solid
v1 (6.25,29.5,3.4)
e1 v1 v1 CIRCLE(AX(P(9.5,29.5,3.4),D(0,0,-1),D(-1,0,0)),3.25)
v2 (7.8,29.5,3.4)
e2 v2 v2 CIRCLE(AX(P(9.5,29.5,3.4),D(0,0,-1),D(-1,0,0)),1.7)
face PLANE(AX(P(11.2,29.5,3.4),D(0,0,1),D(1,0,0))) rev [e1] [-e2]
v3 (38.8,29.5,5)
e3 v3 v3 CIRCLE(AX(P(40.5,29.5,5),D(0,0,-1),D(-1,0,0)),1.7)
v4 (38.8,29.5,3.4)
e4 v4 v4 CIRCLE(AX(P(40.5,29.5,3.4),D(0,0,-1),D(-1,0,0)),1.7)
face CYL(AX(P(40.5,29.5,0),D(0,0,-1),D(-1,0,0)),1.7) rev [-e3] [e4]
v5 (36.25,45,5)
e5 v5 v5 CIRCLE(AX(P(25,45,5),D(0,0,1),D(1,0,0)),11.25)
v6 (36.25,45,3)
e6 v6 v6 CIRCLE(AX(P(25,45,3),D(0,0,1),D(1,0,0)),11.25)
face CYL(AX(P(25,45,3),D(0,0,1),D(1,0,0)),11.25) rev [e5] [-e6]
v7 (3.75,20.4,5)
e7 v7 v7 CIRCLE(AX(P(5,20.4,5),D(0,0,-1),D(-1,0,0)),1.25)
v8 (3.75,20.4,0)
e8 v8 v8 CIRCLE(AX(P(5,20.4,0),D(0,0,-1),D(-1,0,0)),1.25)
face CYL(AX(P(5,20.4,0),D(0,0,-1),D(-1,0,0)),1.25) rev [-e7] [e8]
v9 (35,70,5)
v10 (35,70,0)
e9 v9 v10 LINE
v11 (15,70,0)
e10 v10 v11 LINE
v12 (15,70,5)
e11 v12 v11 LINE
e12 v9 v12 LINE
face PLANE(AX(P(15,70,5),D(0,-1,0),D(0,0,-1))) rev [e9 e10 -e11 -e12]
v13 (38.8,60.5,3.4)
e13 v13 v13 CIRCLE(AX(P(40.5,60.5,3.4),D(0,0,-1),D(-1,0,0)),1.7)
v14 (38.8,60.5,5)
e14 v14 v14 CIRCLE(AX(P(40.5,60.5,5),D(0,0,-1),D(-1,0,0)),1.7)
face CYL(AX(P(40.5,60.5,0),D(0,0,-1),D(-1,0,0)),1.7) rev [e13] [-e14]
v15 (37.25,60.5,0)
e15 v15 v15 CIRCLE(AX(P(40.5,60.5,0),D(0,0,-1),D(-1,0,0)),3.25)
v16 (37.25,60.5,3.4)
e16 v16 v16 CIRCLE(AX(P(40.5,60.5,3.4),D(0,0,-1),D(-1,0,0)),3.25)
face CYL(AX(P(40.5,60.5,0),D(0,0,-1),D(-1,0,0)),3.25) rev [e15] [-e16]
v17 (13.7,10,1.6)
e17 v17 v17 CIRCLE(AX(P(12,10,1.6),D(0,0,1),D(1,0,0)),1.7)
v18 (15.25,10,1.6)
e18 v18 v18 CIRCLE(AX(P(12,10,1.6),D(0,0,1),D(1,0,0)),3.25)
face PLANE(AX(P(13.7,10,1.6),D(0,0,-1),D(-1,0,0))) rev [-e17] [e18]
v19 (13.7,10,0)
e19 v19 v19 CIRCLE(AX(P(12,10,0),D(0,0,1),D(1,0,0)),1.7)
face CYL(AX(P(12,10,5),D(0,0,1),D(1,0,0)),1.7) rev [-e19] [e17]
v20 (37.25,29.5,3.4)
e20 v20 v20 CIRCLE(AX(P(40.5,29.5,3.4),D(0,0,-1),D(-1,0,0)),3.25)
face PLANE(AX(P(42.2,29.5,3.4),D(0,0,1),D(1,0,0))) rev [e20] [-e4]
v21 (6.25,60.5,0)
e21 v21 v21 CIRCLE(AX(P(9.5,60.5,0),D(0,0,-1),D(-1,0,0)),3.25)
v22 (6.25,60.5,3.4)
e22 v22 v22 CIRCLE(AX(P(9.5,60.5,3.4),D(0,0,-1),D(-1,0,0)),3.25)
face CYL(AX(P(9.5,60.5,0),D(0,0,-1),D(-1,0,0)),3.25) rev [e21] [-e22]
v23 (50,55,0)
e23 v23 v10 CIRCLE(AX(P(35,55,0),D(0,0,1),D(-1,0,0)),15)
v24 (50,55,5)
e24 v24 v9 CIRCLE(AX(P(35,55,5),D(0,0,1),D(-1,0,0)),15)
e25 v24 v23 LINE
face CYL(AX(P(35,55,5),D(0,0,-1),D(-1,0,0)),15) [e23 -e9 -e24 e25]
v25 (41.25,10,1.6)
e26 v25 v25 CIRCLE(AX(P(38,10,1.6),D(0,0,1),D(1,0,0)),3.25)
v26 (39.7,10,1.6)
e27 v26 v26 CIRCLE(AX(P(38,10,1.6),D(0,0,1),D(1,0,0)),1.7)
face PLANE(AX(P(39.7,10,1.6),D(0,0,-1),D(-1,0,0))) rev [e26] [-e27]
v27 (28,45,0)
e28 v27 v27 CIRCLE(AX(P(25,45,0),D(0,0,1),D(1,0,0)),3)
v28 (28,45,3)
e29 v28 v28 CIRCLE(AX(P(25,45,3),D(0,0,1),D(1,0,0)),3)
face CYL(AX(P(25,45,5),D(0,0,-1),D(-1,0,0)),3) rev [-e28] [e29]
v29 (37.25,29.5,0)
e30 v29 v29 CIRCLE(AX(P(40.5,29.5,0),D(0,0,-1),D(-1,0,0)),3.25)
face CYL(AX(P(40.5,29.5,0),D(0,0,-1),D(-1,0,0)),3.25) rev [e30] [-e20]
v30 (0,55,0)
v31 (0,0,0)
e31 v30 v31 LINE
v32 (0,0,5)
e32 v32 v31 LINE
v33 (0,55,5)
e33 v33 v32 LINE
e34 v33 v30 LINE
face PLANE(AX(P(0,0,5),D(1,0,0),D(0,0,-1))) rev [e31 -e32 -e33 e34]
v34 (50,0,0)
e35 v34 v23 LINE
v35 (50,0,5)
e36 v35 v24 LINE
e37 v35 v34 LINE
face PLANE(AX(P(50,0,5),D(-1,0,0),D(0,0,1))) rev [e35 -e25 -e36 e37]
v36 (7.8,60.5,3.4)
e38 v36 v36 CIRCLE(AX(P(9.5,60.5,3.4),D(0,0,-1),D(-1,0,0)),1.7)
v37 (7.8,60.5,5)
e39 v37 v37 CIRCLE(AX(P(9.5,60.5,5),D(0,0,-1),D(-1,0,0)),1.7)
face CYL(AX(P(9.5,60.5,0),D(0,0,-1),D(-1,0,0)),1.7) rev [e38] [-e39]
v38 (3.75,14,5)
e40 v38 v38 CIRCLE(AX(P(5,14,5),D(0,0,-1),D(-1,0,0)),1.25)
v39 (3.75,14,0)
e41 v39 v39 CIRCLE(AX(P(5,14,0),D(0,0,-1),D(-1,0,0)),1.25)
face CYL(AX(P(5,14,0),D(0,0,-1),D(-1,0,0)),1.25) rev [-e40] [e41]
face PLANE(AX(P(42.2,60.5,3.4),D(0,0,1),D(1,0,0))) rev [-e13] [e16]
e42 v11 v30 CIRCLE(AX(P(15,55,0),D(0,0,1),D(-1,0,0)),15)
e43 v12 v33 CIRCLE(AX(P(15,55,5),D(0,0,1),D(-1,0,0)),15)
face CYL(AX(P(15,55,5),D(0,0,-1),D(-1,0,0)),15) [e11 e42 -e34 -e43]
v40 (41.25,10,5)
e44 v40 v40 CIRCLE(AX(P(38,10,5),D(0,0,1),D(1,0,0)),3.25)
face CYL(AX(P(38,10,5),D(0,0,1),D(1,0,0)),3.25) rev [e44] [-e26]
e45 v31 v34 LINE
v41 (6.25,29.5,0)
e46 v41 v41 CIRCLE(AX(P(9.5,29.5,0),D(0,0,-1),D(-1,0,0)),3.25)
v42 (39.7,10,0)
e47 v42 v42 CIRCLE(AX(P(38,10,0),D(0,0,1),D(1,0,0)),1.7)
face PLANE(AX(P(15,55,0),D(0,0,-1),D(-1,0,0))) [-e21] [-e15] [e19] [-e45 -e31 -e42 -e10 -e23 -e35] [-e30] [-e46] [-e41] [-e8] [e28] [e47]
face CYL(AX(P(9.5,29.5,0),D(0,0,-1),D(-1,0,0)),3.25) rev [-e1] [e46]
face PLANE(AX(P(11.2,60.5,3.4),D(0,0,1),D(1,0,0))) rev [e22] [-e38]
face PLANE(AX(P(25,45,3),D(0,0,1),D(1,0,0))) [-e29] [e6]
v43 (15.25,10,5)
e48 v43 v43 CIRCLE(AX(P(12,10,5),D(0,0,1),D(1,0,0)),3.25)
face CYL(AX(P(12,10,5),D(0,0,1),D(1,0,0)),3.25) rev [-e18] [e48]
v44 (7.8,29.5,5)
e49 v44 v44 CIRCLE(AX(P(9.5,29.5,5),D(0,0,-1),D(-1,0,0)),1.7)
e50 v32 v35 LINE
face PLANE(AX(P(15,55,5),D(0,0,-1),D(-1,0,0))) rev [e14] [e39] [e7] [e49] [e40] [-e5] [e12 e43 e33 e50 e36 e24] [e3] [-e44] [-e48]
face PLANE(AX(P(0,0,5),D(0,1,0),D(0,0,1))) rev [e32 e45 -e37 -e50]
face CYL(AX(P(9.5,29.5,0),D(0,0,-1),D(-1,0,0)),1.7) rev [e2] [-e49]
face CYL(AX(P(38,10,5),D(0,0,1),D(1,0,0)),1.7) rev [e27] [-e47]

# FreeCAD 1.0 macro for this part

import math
import FreeCAD as App
import Part
import Sketcher

doc = App.newDocument("Part")
body = doc.addObject("PartDesign::Body", "Body")

sketch1 = body.newObject("Sketcher::SketchObject", "Sketch")
sketch1.AttachmentSupport = (doc.getObject("XY_Plane"), [""])
sketch1.MapMode = "FlatFace"
sketch1.addGeometry([
    Part.LineSegment(App.Vector(0, 0, 0), App.Vector(50, 0, 0)),
    Part.LineSegment(App.Vector(50, 0, 0), App.Vector(50, 55, 0)),
    Part.ArcOfCircle(Part.Circle(App.Vector(35, 55, 0), App.Vector(0, 0, 1), 15), math.radians(0), math.radians(90)),
    Part.LineSegment(App.Vector(35, 70, 0), App.Vector(15, 70, 0)),
    Part.ArcOfCircle(Part.Circle(App.Vector(15, 55, 0), App.Vector(0, 0, 1), 15), math.radians(90), math.radians(180)),
    Part.LineSegment(App.Vector(0, 55, 0), App.Vector(0, 0, 0)),
    Part.Circle(App.Vector(25, 45, 0), App.Vector(0, 0, 1), 3),
], False)
sketch1.addConstraint([
    Sketcher.Constraint("Coincident", 0, 2, 1, 1),
    Sketcher.Constraint("Tangent", 1, 2, 2, 1),
    Sketcher.Constraint("Tangent", 2, 2, 3, 1),
    Sketcher.Constraint("Tangent", 3, 2, 4, 1),
    Sketcher.Constraint("Tangent", 4, 2, 5, 1),
    Sketcher.Constraint("Coincident", 5, 2, 0, 1),
    Sketcher.Constraint("Horizontal", 0),
    Sketcher.Constraint("Vertical", 1),
    Sketcher.Constraint("Horizontal", 3),
    Sketcher.Constraint("Vertical", 5),
    Sketcher.Constraint("Coincident", 5, 2, -1, 1),
    Sketcher.Constraint("Equal", 2, 4),
    Sketcher.Constraint("Diameter", 6, 6.0),
    Sketcher.Constraint("Radius", 2, 15.0),
    Sketcher.Constraint("DistanceX", 0, 1, 0, 2, 50.0),
    Sketcher.Constraint("DistanceY", 1, 1, 1, 2, 55.0),
    Sketcher.Constraint("DistanceX", -1, 1, 6, 3, 25.0),
    Sketcher.Constraint("DistanceY", -1, 1, 6, 3, 45.0),
])
pad1 = body.newObject("PartDesign::Pad", "Pad")
pad1.Profile = sketch1
pad1.Length = 5

sketch2 = body.newObject("Sketcher::SketchObject", "Sketch001")
sketch2.AttachmentSupport = (doc.getObject("XY_Plane"), [""])
sketch2.MapMode = "FlatFace"
sketch2.AttachmentOffset = App.Placement(App.Vector(0, 0, 5), App.Rotation())
sketch2.addGeometry(Part.Circle(App.Vector(25, 45, 0), App.Vector(0, 0, 1), 11), False)
sketch2.addConstraint([
    Sketcher.Constraint("Diameter", 0, 22.5),
    Sketcher.Constraint("DistanceX", -1, 1, 0, 3, 25.0),
    Sketcher.Constraint("DistanceY", -1, 1, 0, 3, 45.0),
])
pocket1 = body.newObject("PartDesign::Pocket", "Pocket")
pocket1.Profile = sketch2
pocket1.Length = 2

sketch3 = body.newObject("Sketcher::SketchObject", "Sketch002")
sketch3.AttachmentSupport = (doc.getObject("XY_Plane"), [""])
sketch3.MapMode = "FlatFace"
sketch3.addGeometry([
    Part.Circle(App.Vector(9.5, 29.5, 0), App.Vector(0, 0, 1), 1.7),
    Part.Circle(App.Vector(9.5, 60.5, 0), App.Vector(0, 0, 1), 1.7),
    Part.Circle(App.Vector(40.5, 60.5, 0), App.Vector(0, 0, 1), 1.7),
    Part.Circle(App.Vector(40.5, 29.5, 0), App.Vector(0, 0, 1), 1.7),
], False)
sketch3.addConstraint([
    Sketcher.Constraint("Equal", 0, 1),
    Sketcher.Constraint("Equal", 1, 2),
    Sketcher.Constraint("Equal", 2, 3),
    Sketcher.Constraint("Horizontal", 1, 3, 2, 3),
    Sketcher.Constraint("Horizontal", 0, 3, 3, 3),
    Sketcher.Constraint("Vertical", 0, 3, 1, 3),
    Sketcher.Constraint("Vertical", 2, 3, 3, 3),
    Sketcher.Constraint("Diameter", 0, 3.4),
    Sketcher.Constraint("DistanceY", 0, 3, 1, 3, 31.0),
    Sketcher.Constraint("DistanceX", 1, 3, 2, 3, 31.0),
    Sketcher.Constraint("DistanceX", -1, 1, 0, 3, 9.5),
    Sketcher.Constraint("DistanceY", -1, 1, 0, 3, 29.5),
])
doc.recompute()
hole = body.newObject("PartDesign::Hole", "Hole")
hole.Profile = sketch3
hole.ThreadType = "None"
hole.Diameter = 3.4
hole.DepthType = "ThroughAll"
hole.HoleCutType = "Counterbore"
hole.HoleCutDiameter = 6.5
hole.HoleCutDepth = 3.4
hole.Reversed = True

sketch4 = body.newObject("Sketcher::SketchObject", "Sketch003")
sketch4.AttachmentSupport = (doc.getObject("XY_Plane"), [""])
sketch4.MapMode = "FlatFace"
sketch4.AttachmentOffset = App.Placement(App.Vector(0, 0, 5), App.Rotation())
sketch4.addGeometry([
    Part.Circle(App.Vector(38, 10, 0), App.Vector(0, 0, 1), 1.7),
    Part.Circle(App.Vector(12, 10, 0), App.Vector(0, 0, 1), 1.7),
], False)
sketch4.addConstraint([
    Sketcher.Constraint("Equal", 0, 1),
    Sketcher.Constraint("Horizontal", 0, 3, 1, 3),
    Sketcher.Constraint("Diameter", 0, 3.4),
    Sketcher.Constraint("DistanceX", -1, 1, 0, 3, 38.0),
    Sketcher.Constraint("DistanceY", -1, 1, 0, 3, 10.0),
    Sketcher.Constraint("DistanceX", -1, 1, 1, 3, 12.0),
])
doc.recompute()
hole2 = body.newObject("PartDesign::Hole", "Hole001")
hole2.Profile = sketch4
hole2.ThreadType = "None"
hole2.Diameter = 3.4
hole2.DepthType = "ThroughAll"
hole2.HoleCutType = "Counterbore"
hole2.HoleCutDiameter = 6.5
hole2.HoleCutDepth = 3.4

sketch5 = body.newObject("Sketcher::SketchObject", "Sketch004")
sketch5.AttachmentSupport = (doc.getObject("XY_Plane"), [""])
sketch5.MapMode = "FlatFace"
sketch5.addGeometry([
    Part.Circle(App.Vector(5, 20.4, 0), App.Vector(0, 0, 1), 1.2),
    Part.Circle(App.Vector(5, 14, 0), App.Vector(0, 0, 1), 1.2),
], False)
sketch5.addConstraint([
    Sketcher.Constraint("Equal", 0, 1),
    Sketcher.Constraint("Vertical", 0, 3, 1, 3),
    Sketcher.Constraint("Diameter", 0, 2.5),
    Sketcher.Constraint("DistanceX", -1, 1, 0, 3, 5.0),
    Sketcher.Constraint("DistanceY", -1, 1, 1, 3, 14.0),
    Sketcher.Constraint("DistanceY", -1, 1, 0, 3, 20.4),
])
doc.recompute()
hole3 = body.newObject("PartDesign::Hole", "Hole002")
hole3.Profile = sketch5
hole3.ThreadType = "None"
hole3.Diameter = 2.5
hole3.DepthType = "Dimension"
hole3.Depth = 5
hole3.DrillPoint = "Flat"
hole3.Reversed = True

doc.recompute()
